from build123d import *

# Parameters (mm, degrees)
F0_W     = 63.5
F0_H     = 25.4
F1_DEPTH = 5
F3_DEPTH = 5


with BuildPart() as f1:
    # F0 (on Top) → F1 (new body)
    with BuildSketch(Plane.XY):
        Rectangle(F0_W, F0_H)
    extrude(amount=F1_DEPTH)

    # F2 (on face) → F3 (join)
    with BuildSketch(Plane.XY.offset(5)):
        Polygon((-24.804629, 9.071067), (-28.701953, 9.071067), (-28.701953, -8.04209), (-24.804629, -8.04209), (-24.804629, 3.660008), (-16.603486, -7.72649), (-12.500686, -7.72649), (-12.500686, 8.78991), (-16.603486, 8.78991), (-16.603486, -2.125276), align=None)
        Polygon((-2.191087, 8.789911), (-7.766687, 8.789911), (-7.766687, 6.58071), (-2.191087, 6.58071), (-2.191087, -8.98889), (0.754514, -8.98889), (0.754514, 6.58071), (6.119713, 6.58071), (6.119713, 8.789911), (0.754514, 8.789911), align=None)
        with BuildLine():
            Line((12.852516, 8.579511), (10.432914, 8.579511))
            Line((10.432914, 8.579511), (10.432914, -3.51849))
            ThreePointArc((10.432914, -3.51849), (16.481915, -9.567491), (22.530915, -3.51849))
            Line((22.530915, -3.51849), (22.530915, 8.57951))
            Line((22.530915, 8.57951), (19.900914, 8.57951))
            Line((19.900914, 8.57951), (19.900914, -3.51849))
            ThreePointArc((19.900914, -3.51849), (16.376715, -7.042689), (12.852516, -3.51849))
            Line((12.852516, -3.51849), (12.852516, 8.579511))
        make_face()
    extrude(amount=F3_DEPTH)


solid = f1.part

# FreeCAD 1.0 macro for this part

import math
import FreeCAD as App
import Part
import Sketcher
from FreeCAD import Vector
Q = App.Units.Quantity


def add_polygon(sketch, points):
    """Adds a closed chain of lines whose ends are joined by coincident constraints."""
    first, n = sketch.GeometryCount, len(points)
    for a, b in zip(points, points[1:] + points[:1]):
        sketch.addGeometry(Part.LineSegment(App.Vector(*a, 0), App.Vector(*b, 0)), False)
    for i in range(n):
        sketch.addConstraint(Sketcher.Constraint("Coincident", first + i, 2, first + (i + 1) % n, 1))

doc = App.newDocument("Part")
params = doc.addObject("Spreadsheet::Sheet", "Params")
for row, (alias, value) in enumerate([
    ("sketch1_height", "1 in"),
    ("sketch1_width", "2.5 in"),
    ("pad1_length", "5 mm"),
    ("pad2_length", "5 mm"),
], start=1):
    params.set(f"A{row}", alias)
    params.set(f"B{row}", "=" + value)
    params.setAlias(f"B{row}", alias)

body = doc.addObject("PartDesign::Body", "Body")

sketch1 = doc.addObject("Sketcher::SketchObject", "Sketch")
body.addObject(sketch1)
sketch1.AttachmentSupport = (doc.XY_Plane, [""])
sketch1.MapMode = "FlatFace"
add_polygon(sketch1, [(-32, 13), (-32, -13), (32, -13), (32, 13)])
sketch1.addConstraint([
    Sketcher.Constraint("Vertical", 0),
    Sketcher.Constraint("Horizontal", 1),
    Sketcher.Constraint("Vertical", 2),
    Sketcher.Constraint("Horizontal", 3),
    Sketcher.Constraint("Symmetric", 0, 2, 2, 2, -1, 1),
    Sketcher.Constraint("DistanceY", 0, 2, 0, 1, Q("1 in")),
    Sketcher.Constraint("DistanceX", 1, 1, 1, 2, Q("2.5 in")),
])
sketch1.setExpression("Constraints[9]", "Params.sketch1_height")
sketch1.setExpression("Constraints[10]", "Params.sketch1_width")
pad1 = doc.addObject("PartDesign::Pad", "Pad")
body.addObject(pad1)
pad1.Profile = sketch1
pad1.setExpression("Length", "Params.pad1_length")

sketch2 = doc.addObject("Sketcher::SketchObject", "Sketch001")
body.addObject(sketch2)
sketch2.AttachmentSupport = (doc.XY_Plane, [""])
sketch2.MapMode = "FlatFace"
sketch2.AttachmentOffset = App.Placement(Vector(0, 0, 5), App.Rotation())
add_polygon(sketch2, [(-24.8, 9.1), (-28.7, 9.1), (-28.7, -8), (-24.8, -8), (-24.8, 3.7), (-16.6, -7.7), (-12.5, -7.7), (-12.5, 8.8), (-16.6, 8.8), (-16.6, -2.1)])
add_polygon(sketch2, [(-7.8, 8.8), (-7.8, 6.6), (-2.2, 6.6), (-2.2, -9), (0.8, -9), (0.8, 6.6), (6.1, 6.6), (6.1, 8.8)])
sketch2.addGeometry(Part.LineSegment(Vector(12.9, 8.6, 0), Vector(10.4, 8.6, 0)), False)
sketch2.addGeometry(Part.LineSegment(Vector(10.4, 8.6, 0), Vector(10.4, -3.5, 0)), False)
sketch2.addGeometry(Part.ArcOfCircle(Part.Circle(Vector(16.5, -3.5, 0), Vector(0, 0, 1), 6), math.radians(180), math.radians(360)), False)
sketch2.addGeometry(Part.LineSegment(Vector(22.5, -3.5, 0), Vector(22.5, 8.6, 0)), False)
sketch2.addGeometry(Part.LineSegment(Vector(22.5, 8.6, 0), Vector(19.9, 8.6, 0)), False)
sketch2.addGeometry(Part.LineSegment(Vector(19.9, 8.6, 0), Vector(19.9, -3.5, 0)), False)
sketch2.addGeometry(Part.ArcOfCircle(Part.Circle(Vector(16.4, -3.5, 0), Vector(0, 0, 1), 3.5), math.radians(180), math.radians(360)), False)
sketch2.addGeometry(Part.LineSegment(Vector(12.9, -3.5, 0), Vector(12.9, 8.6, 0)), False)
sketch2.addConstraint([
    Sketcher.Constraint("Coincident", 18, 2, 19, 1),
    Sketcher.Constraint("Tangent", 19, 2, 20, 1),
    Sketcher.Constraint("Tangent", 20, 2, 21, 1),
    Sketcher.Constraint("Coincident", 21, 2, 22, 1),
    Sketcher.Constraint("Coincident", 22, 2, 23, 1),
    Sketcher.Constraint("Tangent", 23, 2, 24, 2),
    Sketcher.Constraint("Tangent", 24, 1, 25, 1),
    Sketcher.Constraint("Coincident", 25, 2, 18, 1),
    Sketcher.Constraint("Horizontal", 0),
    Sketcher.Constraint("Vertical", 1),
    Sketcher.Constraint("Horizontal", 2),
    Sketcher.Constraint("Vertical", 3),
    Sketcher.Constraint("Horizontal", 5),
    Sketcher.Constraint("Vertical", 6),
    Sketcher.Constraint("Horizontal", 7),
    Sketcher.Constraint("Vertical", 8),
    Sketcher.Constraint("Vertical", 10),
    Sketcher.Constraint("Horizontal", 11),
    Sketcher.Constraint("Vertical", 12),
    Sketcher.Constraint("Horizontal", 13),
    Sketcher.Constraint("Vertical", 14),
    Sketcher.Constraint("Horizontal", 15),
    Sketcher.Constraint("Vertical", 16),
    Sketcher.Constraint("Horizontal", 17),
    Sketcher.Constraint("Horizontal", 18),
    Sketcher.Constraint("Vertical", 19),
    Sketcher.Constraint("Vertical", 21),
    Sketcher.Constraint("Horizontal", 22),
    Sketcher.Constraint("Vertical", 23),
    Sketcher.Constraint("Vertical", 25),
    Sketcher.Constraint("Horizontal", 20, 3, 24, 3),
    Sketcher.Constraint("Horizontal", 11, 2, 14, 2),
    Sketcher.Constraint("Horizontal", 7, 2, 16, 2),
    Sketcher.Constraint("Horizontal", 18, 2, 21, 2),
    Sketcher.Constraint("Vertical", 4, 2, 7, 2),
    Sketcher.Constraint("Vertical", 3, 2, 9, 2),
    Sketcher.Constraint("Radius", 20, Q("6.049001 mm")),
    Sketcher.Constraint("Radius", 24, Q("3.524199 mm")),
    Sketcher.Constraint("DistanceX", 5, 1, 5, 2, Q("4.1028 mm")),
    Sketcher.Constraint("DistanceX", 11, 1, 11, 2, Q("5.5756 mm")),
    Sketcher.Constraint("DistanceX", 13, 1, 13, 2, Q("2.945601 mm")),
    Sketcher.Constraint("DistanceX", 15, 1, 15, 2, Q("5.365199 mm")),
    Sketcher.Constraint("DistanceX", 18, 2, 18, 1, Q("2.419602 mm")),
    Sketcher.Constraint("DistanceY", 6, 1, 6, 2, Q("16.5164 mm")),
    Sketcher.Constraint("DistanceY", 10, 2, 10, 1, Q("2.209201 mm")),
    Sketcher.Constraint("DistanceY", 12, 2, 12, 1, Q("15.5696 mm")),
    Sketcher.Constraint("DistanceY", 19, 2, 19, 1, Q("12.098001 mm")),
    Sketcher.Constraint("Distance", 4, Q("14.032501 mm")),
    Sketcher.Constraint("DistanceY", 1, 2, 24, 3, Q("4.5236 mm")),
    Sketcher.Constraint("DistanceY", 20, 3, 3, 2, Q("7.178498 mm")),
    Sketcher.Constraint("DistanceY", 2, 2, 4, 2, Q("0.3156 mm")),
    Sketcher.Constraint("DistanceX", 4, 2, 24, 3, Q("32.980201 mm")),
    Sketcher.Constraint("DistanceX", 6, 2, 10, 2, Q("4.733999 mm")),
    Sketcher.Constraint("DistanceX", 0, 2, 0, 1, Q("3.897324 mm")),
    Sketcher.Constraint("DistanceY", 1, 2, 1, 1, Q("17.113157 mm")),
    Sketcher.Constraint("DistanceY", 8, 2, 8, 1, Q("10.915186 mm")),
    Sketcher.Constraint("DistanceY", 20, 3, -1, 1, Q("3.51849 mm")),
    Sketcher.Constraint("DistanceX", 2, 2, -1, 1, Q("24.804629 mm")),
])
pad2 = doc.addObject("PartDesign::Pad", "Pad001")
body.addObject(pad2)
pad2.Profile = sketch2
pad2.setExpression("Length", "Params.pad2_length")

doc.recompute()
